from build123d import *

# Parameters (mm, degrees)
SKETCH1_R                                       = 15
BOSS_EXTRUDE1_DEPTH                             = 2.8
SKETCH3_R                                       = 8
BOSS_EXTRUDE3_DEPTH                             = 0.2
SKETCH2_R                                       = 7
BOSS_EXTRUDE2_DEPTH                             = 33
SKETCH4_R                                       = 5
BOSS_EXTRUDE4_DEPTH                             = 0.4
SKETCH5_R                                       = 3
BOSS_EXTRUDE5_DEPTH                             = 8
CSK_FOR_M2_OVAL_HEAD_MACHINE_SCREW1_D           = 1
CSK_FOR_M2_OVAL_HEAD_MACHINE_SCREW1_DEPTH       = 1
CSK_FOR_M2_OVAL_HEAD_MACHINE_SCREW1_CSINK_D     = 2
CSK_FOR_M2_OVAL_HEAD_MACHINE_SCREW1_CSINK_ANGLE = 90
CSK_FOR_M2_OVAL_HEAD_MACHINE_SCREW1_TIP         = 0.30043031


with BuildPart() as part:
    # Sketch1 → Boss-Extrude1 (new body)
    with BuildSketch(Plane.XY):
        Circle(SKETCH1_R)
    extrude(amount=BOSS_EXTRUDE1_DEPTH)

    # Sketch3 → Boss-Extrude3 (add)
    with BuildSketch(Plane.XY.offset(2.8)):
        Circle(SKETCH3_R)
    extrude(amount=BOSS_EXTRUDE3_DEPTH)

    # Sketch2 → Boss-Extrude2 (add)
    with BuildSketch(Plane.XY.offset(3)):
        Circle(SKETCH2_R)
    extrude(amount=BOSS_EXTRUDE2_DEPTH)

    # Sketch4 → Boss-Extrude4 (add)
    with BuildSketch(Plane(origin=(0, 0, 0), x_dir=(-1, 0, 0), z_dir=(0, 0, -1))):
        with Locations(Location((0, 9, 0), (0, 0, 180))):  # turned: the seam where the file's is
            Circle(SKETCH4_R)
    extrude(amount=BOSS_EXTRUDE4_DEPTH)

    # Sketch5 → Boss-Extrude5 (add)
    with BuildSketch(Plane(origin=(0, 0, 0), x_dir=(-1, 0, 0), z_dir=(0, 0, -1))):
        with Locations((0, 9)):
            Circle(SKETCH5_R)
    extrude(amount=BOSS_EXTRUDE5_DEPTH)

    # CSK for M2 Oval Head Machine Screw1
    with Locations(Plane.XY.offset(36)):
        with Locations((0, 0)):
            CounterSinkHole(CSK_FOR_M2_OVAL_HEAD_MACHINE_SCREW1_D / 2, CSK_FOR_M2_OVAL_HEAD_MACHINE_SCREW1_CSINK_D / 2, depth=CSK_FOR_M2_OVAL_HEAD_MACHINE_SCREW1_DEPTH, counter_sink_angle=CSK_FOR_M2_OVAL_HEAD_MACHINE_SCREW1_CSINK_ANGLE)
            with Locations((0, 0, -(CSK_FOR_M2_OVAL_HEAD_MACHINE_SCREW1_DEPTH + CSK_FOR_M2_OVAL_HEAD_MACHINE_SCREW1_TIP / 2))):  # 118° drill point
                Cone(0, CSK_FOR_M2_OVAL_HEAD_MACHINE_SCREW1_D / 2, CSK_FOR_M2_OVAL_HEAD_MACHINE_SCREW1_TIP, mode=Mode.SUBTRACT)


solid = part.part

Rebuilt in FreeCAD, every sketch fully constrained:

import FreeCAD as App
import Part
import Sketcher
from FreeCAD import Vector

doc = App.newDocument("Part")
body = doc.addObject("PartDesign::Body", "Body")

sketch1 = body.newObject("Sketcher::SketchObject", "Sketch")
sketch1.AttachmentSupport = (doc.getObject("XY_Plane"), [""])
sketch1.MapMode = "FlatFace"
sketch1.addGeometry(Part.Circle(Vector(0, 0, 0), Vector(0, 0, 1), 15), False)
sketch1.addConstraint([
    Sketcher.Constraint("Coincident", 0, 3, -1, 1),
    Sketcher.Constraint("Diameter", 0, 30.0),
])
pad1 = body.newObject("PartDesign::Pad", "Pad")
pad1.Profile = sketch1
pad1.Length = 2.8

sketch2 = body.newObject("Sketcher::SketchObject", "Sketch001")
sketch2.AttachmentSupport = (doc.getObject("XY_Plane"), [""])
sketch2.MapMode = "FlatFace"
sketch2.AttachmentOffset = App.Placement(Vector(0, 0, 2.8), App.Rotation())
sketch2.addGeometry(Part.Circle(Vector(0, 0, 0), Vector(0, 0, 1), 8), False)
sketch2.addConstraint([
    Sketcher.Constraint("Coincident", 0, 3, -1, 1),
    Sketcher.Constraint("Diameter", 0, 16.0),
])
pad2 = body.newObject("PartDesign::Pad", "Pad001")
pad2.Profile = sketch2
pad2.Length = 0.2

sketch3 = body.newObject("Sketcher::SketchObject", "Sketch002")
sketch3.AttachmentSupport = (doc.getObject("XY_Plane"), [""])
sketch3.MapMode = "FlatFace"
sketch3.AttachmentOffset = App.Placement(Vector(0, 0, 3), App.Rotation())
sketch3.addGeometry(Part.Circle(Vector(0, 0, 0), Vector(0, 0, 1), 7), False)
sketch3.addConstraint([
    Sketcher.Constraint("Coincident", 0, 3, -1, 1),
    Sketcher.Constraint("Diameter", 0, 14.0),
])
pad3 = body.newObject("PartDesign::Pad", "Pad002")
pad3.Profile = sketch3
pad3.Length = 33

sketch4 = body.newObject("Sketcher::SketchObject", "Sketch003")
sketch4.AttachmentSupport = (doc.getObject("XY_Plane"), [""])
sketch4.MapMode = "FlatFace"
sketch4.addGeometry(Part.Circle(Vector(0, 9, 0), Vector(0, 0, 1), 5), False)
sketch4.addConstraint([
    Sketcher.Constraint("PointOnObject", 0, 3, -2),
    Sketcher.Constraint("Diameter", 0, 10.0),
    Sketcher.Constraint("DistanceY", -1, 1, 0, 3, 9.0),
])
pad4 = body.newObject("PartDesign::Pad", "Pad003")
pad4.Profile = sketch4
pad4.Length = 0.4
pad4.Reversed = True

sketch5 = body.newObject("Sketcher::SketchObject", "Sketch004")
sketch5.AttachmentSupport = (doc.getObject("XY_Plane"), [""])
sketch5.MapMode = "FlatFace"
sketch5.addGeometry(Part.Circle(Vector(0, 9, 0), Vector(0, 0, 1), 3), False)
sketch5.addConstraint([
    Sketcher.Constraint("PointOnObject", 0, 3, -2),
    Sketcher.Constraint("Diameter", 0, 6.0),
    Sketcher.Constraint("DistanceY", -1, 1, 0, 3, 9.0),
])
pad5 = body.newObject("PartDesign::Pad", "Pad004")
pad5.Profile = sketch5
pad5.Length = 8
pad5.Reversed = True

sketch6 = body.newObject("Sketcher::SketchObject", "Sketch005")
sketch6.AttachmentSupport = (doc.getObject("XY_Plane"), [""])
sketch6.MapMode = "FlatFace"
sketch6.AttachmentOffset = App.Placement(Vector(0, 0, 36), App.Rotation())
sketch6.addGeometry(Part.Circle(Vector(0, 0, 0), Vector(0, 0, 1), 0.5), False)
sketch6.addConstraint([
    Sketcher.Constraint("Coincident", 0, 3, -1, 1),
    Sketcher.Constraint("Diameter", 0, 1.0),
])
doc.recompute()
hole = body.newObject("PartDesign::Hole", "Hole")
hole.Profile = sketch6
hole.ThreadType = "None"
hole.Diameter = 1
hole.DepthType = "Dimension"
hole.Depth = 1
hole.DrillPoint = "Angled"
hole.DrillPointAngle = 118
hole.HoleCutType = "Countersink"
hole.HoleCutDiameter = 2
hole.HoleCutCountersinkAngle = 90

doc.recompute()
